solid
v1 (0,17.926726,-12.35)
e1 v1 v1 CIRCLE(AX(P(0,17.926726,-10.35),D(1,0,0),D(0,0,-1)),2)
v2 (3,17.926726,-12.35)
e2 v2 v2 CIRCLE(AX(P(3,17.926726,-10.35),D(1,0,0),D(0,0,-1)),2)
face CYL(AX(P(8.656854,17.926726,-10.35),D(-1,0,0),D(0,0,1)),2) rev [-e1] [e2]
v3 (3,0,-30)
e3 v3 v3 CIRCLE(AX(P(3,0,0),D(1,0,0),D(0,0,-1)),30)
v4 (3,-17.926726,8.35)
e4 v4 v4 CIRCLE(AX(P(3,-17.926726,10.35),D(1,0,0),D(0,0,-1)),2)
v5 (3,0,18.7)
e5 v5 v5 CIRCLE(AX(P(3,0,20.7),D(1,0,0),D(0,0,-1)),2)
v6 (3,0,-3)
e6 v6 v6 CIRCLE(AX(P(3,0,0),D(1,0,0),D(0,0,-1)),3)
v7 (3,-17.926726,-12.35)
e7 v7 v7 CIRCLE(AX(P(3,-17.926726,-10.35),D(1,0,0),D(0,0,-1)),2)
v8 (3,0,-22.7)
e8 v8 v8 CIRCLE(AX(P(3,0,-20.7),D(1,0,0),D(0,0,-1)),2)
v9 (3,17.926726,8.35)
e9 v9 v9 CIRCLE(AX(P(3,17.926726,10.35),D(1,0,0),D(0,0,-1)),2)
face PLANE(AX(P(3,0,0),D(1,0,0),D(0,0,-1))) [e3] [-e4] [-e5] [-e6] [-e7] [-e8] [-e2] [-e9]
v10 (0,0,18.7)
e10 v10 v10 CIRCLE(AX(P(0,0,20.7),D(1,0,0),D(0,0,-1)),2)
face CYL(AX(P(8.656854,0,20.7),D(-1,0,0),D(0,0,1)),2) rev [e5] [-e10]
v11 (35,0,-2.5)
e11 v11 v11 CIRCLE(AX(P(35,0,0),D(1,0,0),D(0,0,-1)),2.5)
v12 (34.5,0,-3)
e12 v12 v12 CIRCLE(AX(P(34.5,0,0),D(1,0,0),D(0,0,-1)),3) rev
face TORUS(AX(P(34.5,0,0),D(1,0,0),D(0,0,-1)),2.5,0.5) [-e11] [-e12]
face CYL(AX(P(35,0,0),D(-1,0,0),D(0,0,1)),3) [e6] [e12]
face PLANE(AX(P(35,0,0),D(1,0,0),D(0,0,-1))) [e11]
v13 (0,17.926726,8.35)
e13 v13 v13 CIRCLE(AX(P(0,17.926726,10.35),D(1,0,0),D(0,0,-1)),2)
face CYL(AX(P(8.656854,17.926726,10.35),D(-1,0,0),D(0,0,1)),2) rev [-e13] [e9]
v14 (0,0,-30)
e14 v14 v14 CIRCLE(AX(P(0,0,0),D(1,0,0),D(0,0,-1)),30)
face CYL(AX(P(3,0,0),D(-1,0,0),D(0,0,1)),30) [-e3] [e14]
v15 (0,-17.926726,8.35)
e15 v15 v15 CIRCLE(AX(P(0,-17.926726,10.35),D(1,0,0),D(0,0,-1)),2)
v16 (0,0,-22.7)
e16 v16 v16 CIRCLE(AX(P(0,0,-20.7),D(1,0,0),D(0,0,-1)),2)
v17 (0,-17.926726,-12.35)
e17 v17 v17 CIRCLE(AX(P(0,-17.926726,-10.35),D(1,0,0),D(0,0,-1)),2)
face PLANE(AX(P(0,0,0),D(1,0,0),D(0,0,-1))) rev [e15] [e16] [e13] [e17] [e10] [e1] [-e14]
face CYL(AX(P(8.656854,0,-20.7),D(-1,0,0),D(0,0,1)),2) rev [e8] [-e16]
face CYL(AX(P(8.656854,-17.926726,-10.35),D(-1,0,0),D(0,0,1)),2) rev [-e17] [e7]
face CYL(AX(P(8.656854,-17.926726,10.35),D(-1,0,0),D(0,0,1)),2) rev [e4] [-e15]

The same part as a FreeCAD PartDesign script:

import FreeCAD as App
import Part
import Sketcher

V = App.Vector


def edges_at(feature, points):
    """Names of the edges that pass closest to the given points."""
    edges = feature.Shape.Edges
    near = lambda p: min(range(len(edges)), key=lambda i: edges[i].distToShape(Part.Vertex(*p))[0])
    return sorted({f"Edge{near(p) + 1}" for p in points})

doc = App.newDocument("Part")
params = doc.addObject("Spreadsheet::Sheet", "Params")
for row, (alias, value) in enumerate([
    ("sketch1_diameter", "60 mm"),
    ("pad1_length", "3 mm"),
    ("sketch2_diameter", "4 mm"),
    ("pocket1_length", "3 mm"),
    ("sketch3_diameter", "6 mm"),
    ("pad2_length", "32 mm"),
    ("fillet_radius", "0.5 mm"),
], start=1):
    params.set(f"A{row}", alias)
    params.set(f"B{row}", "=" + value)
    params.setAlias(f"B{row}", alias)

body = doc.addObject("PartDesign::Body", "Body")

sketch1 = body.newObject("Sketcher::SketchObject", "Sketch")
sketch1.AttachmentSupport = (doc.getObject("YZ_Plane"), [""])
sketch1.MapMode = "FlatFace"
sketch1.addGeometry(Part.Circle(V(0, 0, 0), V(0, 0, 1), 30), False)
sketch1.addConstraint([
    Sketcher.Constraint("Coincident", 0, 3, -1, 1),
    Sketcher.Constraint("Diameter", 0, 60.0),
])
sketch1.setExpression("Constraints[1]", "Params.sketch1_diameter")
pad1 = body.newObject("PartDesign::Pad", "Pad")
pad1.Profile = sketch1
pad1.setExpression("Length", "Params.pad1_length")

sketch2 = body.newObject("Sketcher::SketchObject", "Sketch001")
sketch2.AttachmentSupport = (doc.getObject("YZ_Plane"), [""])
sketch2.MapMode = "FlatFace"
sketch2.addGeometry([
    Part.Circle(V(0, -20.7, 0), V(0, 0, 1), 2),
    Part.Circle(V(-17.9, -10.3, 0), V(0, 0, 1), 2),
    Part.Circle(V(-17.9, 10.3, 0), V(0, 0, 1), 2),
    Part.Circle(V(0, 20.7, 0), V(0, 0, 1), 2),
    Part.Circle(V(17.9, 10.3, 0), V(0, 0, 1), 2),
    Part.Circle(V(17.9, -10.3, 0), V(0, 0, 1), 2),
], False)
sketch2.addConstraint([
    Sketcher.Constraint("Equal", 0, 1),
    Sketcher.Constraint("Equal", 1, 2),
    Sketcher.Constraint("Equal", 2, 3),
    Sketcher.Constraint("Equal", 3, 4),
    Sketcher.Constraint("Equal", 4, 5),
    Sketcher.Constraint("Symmetric", 0, 3, 3, 3, -1, 1),
    Sketcher.Constraint("Symmetric", 1, 3, 4, 3, -1, 1),
    Sketcher.Constraint("Symmetric", 2, 3, 5, 3, -1, 1),
    Sketcher.Constraint("Symmetric", 2, 3, 4, 3, -2),
    Sketcher.Constraint("PointOnObject", 0, 3, -2),
    Sketcher.Constraint("Diameter", 0, 4.0),
    Sketcher.Constraint("DistanceY", 0, 3, -1, 1, 20.7),
    Sketcher.Constraint("DistanceY", 1, 3, 2, 3, 20.7),
    Sketcher.Constraint("DistanceX", 2, 3, 4, 3, 35.853452),
])
sketch2.setExpression("Constraints[10]", "Params.sketch2_diameter")
pocket1 = body.newObject("PartDesign::Pocket", "Pocket")
pocket1.Profile = sketch2
pocket1.setExpression("Length", "Params.pocket1_length")
pocket1.Reversed = True

sketch3 = body.newObject("Sketcher::SketchObject", "Sketch002")
sketch3.AttachmentSupport = (doc.getObject("YZ_Plane"), [""])
sketch3.MapMode = "FlatFace"
sketch3.AttachmentOffset = App.Placement(V(0, 0, 3), App.Rotation())
sketch3.addGeometry(Part.Circle(V(0, 0, 0), V(0, 0, 1), 3), False)
sketch3.addConstraint([
    Sketcher.Constraint("Coincident", 0, 3, -1, 1),
    Sketcher.Constraint("Diameter", 0, 6.0),
])
sketch3.setExpression("Constraints[1]", "Params.sketch3_diameter")
pad2 = body.newObject("PartDesign::Pad", "Pad001")
pad2.Profile = sketch3
pad2.setExpression("Length", "Params.pad2_length")
doc.recompute()

fillet = body.newObject("PartDesign::Fillet", "Fillet")
fillet.Base = (pad2, edges_at(pad2, [(35, 0, 3)]))
fillet.setExpression("Radius", "Params.fillet_radius")

doc.recompute()
